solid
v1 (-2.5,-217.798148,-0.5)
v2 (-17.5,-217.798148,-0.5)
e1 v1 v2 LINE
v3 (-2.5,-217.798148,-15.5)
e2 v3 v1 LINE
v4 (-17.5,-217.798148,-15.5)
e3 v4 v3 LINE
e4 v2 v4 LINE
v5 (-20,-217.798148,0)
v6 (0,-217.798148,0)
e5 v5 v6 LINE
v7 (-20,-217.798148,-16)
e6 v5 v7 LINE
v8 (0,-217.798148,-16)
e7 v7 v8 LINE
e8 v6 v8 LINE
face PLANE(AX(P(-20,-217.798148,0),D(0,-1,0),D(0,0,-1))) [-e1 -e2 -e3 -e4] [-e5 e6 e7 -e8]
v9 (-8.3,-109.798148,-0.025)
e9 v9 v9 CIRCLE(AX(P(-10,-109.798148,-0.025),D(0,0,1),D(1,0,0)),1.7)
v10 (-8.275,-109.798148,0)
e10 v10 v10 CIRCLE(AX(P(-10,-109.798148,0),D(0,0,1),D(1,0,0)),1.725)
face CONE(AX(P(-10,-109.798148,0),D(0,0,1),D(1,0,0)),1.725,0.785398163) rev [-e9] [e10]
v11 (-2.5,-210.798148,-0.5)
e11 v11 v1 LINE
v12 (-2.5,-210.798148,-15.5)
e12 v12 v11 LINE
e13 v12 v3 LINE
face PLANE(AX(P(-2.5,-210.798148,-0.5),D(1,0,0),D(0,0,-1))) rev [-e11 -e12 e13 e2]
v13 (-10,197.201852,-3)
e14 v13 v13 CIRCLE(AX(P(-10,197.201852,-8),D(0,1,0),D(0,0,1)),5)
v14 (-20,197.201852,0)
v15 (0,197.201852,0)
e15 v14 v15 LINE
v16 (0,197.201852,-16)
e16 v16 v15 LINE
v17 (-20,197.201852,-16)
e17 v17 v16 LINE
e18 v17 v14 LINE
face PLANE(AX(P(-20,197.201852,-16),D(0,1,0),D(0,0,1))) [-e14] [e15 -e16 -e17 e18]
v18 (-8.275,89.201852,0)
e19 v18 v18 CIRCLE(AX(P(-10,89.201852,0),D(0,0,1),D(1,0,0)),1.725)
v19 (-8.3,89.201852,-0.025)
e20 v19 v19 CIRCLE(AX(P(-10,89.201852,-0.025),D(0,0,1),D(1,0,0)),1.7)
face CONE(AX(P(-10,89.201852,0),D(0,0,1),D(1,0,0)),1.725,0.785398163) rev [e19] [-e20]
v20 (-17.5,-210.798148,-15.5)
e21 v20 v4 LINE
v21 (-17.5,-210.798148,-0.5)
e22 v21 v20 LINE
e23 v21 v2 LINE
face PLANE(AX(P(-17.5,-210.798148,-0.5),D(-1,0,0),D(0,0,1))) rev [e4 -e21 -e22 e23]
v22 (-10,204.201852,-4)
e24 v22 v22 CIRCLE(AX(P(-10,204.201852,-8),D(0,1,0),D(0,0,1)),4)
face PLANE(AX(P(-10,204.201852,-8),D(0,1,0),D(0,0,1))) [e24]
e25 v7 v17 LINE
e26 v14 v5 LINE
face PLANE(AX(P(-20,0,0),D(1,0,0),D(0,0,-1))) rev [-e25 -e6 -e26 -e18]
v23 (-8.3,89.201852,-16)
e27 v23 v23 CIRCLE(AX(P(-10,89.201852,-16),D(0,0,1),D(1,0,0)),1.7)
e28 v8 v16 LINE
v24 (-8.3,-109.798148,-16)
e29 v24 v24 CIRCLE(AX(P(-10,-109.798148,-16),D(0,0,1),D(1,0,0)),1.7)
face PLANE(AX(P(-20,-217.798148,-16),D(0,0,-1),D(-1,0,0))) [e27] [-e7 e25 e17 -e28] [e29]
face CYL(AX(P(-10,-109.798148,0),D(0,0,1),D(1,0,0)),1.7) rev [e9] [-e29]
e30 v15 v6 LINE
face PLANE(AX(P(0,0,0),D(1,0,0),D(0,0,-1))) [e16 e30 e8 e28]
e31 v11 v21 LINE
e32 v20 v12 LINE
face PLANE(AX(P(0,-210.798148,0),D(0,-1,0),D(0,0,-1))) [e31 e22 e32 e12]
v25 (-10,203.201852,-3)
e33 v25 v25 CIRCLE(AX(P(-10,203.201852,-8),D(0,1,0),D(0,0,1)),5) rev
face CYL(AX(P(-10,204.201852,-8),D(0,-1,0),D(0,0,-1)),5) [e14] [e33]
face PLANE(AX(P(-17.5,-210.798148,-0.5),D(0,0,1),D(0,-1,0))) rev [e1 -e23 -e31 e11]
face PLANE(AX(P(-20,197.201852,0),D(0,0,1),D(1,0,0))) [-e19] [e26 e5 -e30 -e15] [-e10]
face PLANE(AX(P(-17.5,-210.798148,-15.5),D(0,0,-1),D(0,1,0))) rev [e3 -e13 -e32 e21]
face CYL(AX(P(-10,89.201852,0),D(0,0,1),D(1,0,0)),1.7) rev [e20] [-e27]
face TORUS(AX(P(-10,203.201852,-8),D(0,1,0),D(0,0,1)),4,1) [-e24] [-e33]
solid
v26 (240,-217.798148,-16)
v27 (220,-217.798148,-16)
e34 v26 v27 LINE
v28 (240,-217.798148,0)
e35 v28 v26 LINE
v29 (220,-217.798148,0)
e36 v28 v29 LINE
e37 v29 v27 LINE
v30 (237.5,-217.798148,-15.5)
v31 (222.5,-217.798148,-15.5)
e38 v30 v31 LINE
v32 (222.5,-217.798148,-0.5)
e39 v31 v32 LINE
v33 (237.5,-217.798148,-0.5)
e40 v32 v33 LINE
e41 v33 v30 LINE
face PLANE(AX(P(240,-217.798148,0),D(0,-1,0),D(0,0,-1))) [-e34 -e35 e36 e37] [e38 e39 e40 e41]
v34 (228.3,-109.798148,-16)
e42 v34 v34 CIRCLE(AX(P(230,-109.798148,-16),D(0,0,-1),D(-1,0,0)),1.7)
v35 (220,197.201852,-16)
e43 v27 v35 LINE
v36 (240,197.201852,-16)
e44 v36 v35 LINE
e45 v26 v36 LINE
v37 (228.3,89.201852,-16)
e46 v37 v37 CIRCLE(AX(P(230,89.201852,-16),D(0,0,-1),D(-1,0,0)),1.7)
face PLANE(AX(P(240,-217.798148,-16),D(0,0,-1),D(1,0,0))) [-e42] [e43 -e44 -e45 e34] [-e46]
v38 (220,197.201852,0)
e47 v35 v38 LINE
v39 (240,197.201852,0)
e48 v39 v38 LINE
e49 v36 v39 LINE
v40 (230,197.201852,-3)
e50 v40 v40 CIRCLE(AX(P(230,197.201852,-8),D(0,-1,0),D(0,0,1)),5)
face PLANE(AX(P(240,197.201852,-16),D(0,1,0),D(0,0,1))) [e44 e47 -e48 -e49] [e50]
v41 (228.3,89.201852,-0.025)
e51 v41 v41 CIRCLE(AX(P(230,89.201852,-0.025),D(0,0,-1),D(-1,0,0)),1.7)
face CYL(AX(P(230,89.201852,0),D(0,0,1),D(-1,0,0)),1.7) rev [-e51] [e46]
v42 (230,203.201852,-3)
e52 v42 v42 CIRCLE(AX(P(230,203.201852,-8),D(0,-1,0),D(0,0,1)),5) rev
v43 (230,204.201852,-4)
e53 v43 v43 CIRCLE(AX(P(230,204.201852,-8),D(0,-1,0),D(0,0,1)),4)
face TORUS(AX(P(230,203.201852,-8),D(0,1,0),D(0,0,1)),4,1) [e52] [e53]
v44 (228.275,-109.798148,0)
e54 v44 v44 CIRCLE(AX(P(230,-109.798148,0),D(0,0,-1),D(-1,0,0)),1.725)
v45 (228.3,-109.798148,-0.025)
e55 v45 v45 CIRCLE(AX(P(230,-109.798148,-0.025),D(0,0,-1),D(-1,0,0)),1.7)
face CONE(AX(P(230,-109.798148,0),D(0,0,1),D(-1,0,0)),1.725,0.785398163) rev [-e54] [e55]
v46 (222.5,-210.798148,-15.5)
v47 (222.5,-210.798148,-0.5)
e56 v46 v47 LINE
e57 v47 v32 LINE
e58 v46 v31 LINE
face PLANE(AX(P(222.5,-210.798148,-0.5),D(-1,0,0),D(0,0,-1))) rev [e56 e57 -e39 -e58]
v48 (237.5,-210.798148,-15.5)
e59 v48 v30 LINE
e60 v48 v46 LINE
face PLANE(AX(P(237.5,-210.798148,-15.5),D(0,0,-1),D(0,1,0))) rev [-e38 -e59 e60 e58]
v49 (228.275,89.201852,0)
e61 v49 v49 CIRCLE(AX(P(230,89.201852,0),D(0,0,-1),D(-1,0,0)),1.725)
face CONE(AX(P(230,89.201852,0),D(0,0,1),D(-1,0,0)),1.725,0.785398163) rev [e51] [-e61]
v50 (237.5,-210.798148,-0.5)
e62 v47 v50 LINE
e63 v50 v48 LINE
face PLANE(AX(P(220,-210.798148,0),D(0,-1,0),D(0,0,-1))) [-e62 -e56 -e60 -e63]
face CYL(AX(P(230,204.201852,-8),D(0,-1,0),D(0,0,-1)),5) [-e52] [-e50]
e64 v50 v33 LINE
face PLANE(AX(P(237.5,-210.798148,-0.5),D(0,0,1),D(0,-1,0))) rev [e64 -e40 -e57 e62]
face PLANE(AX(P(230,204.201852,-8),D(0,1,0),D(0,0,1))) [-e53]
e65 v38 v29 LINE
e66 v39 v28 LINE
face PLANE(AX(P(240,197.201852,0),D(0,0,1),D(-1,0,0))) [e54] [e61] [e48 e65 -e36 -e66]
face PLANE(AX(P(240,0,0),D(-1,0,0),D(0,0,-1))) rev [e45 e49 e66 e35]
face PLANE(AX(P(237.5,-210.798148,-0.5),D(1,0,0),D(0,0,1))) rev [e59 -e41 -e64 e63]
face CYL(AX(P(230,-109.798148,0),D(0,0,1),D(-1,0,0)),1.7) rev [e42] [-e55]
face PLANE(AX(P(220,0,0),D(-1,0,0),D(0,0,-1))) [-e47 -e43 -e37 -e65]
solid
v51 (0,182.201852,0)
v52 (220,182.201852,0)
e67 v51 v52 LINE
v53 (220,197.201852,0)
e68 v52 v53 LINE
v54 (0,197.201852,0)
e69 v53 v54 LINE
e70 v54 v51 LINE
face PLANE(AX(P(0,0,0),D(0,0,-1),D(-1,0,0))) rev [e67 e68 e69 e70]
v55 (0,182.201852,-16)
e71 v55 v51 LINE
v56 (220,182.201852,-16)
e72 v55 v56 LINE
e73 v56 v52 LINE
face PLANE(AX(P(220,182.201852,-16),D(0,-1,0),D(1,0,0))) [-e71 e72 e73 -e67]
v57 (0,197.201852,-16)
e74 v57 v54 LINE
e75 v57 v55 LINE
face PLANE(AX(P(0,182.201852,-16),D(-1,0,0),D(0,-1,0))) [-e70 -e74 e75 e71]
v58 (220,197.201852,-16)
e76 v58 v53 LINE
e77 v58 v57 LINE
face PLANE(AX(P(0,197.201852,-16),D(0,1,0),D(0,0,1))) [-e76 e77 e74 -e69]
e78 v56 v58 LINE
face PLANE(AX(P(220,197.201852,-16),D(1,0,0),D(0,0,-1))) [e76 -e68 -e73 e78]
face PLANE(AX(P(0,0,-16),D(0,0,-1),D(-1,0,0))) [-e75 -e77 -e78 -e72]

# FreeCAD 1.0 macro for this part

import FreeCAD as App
import Part
import Sketcher
Q = App.Units.Quantity


def edges_at(feature, points):
    """Names of the edges that pass closest to the given points."""
    edges = feature.Shape.Edges
    near = lambda p: min(range(len(edges)), key=lambda i: edges[i].distToShape(Part.Vertex(*p))[0])
    return sorted({f"Edge{near(p) + 1}" for p in points})


def add_polygon(sketch, points):
    """Adds a closed chain of lines whose ends are joined by coincident constraints."""
    first, n = sketch.GeometryCount, len(points)
    for a, b in zip(points, points[1:] + points[:1]):
        sketch.addGeometry(Part.LineSegment(App.Vector(*a, 0), App.Vector(*b, 0)), False)
    for i in range(n):
        sketch.addConstraint(Sketcher.Constraint("Coincident", first + i, 2, first + (i + 1) % n, 1))

doc = App.newDocument("Part")
body = doc.addObject("PartDesign::Body", "Body")

# Sketch on YZ plane
sketch1 = body.newObject("Sketcher::SketchObject", "Sketch")
sketch1.AttachmentSupport = (doc.getObject("YZ_Plane"), [""])
sketch1.MapMode = "FlatFace"
add_polygon(sketch1, [(197, 0), (-218, 0), (-218, -16), (197, -16)])  # lines 0-3
sketch1.addConstraint([
    Sketcher.Constraint("Horizontal", 0),
    Sketcher.Constraint("Vertical", 1),
    Sketcher.Constraint("Horizontal", 2),
    Sketcher.Constraint("Vertical", 3),
    Sketcher.Constraint("PointOnObject", 0, 2, -1),
    Sketcher.Constraint("DistanceX", 0, 2, 0, 1, Q("415 mm")),
    Sketcher.Constraint("DistanceY", 1, 2, 1, 1, Q("16 mm")),
    Sketcher.Constraint("DistanceX", 0, 2, -1, 1, Q("217.798148 mm")),
])
pad1 = body.newObject("PartDesign::Pad", "Pad")
pad1.Profile = sketch1
pad1.Length = 20
pad1.Reversed = True

# Sketch on XZ plane
sketch2 = body.newObject("Sketcher::SketchObject", "Sketch001")
sketch2.AttachmentSupport = (doc.getObject("XZ_Plane"), [""])
sketch2.MapMode = "FlatFace"
sketch2.AttachmentOffset = App.Placement(App.Vector(0, 0, -197.201852), App.Rotation())
sketch2.addGeometry(Part.Circle(App.Vector(-10, -8, 0), App.Vector(0, 0, 1), 5), False)
sketch2.addConstraint([
    Sketcher.Constraint("Diameter", 0, Q("10 mm")),
    Sketcher.Constraint("DistanceX", 0, 3, -1, 1, Q("10 mm")),
    Sketcher.Constraint("DistanceY", 0, 3, -1, 1, Q("8 mm")),
])
pad2 = body.newObject("PartDesign::Pad", "Pad001")
pad2.Profile = sketch2
pad2.Length = 7
pad2.Reversed = True
doc.recompute()

fillet = body.newObject("PartDesign::Fillet", "Fillet")
fillet.Base = (pad2, edges_at(pad2, [(-15, 204.202, -8)]))
fillet.Radius = 1

# Sketch on XY plane
sketch3 = body.newObject("Sketcher::SketchObject", "Sketch002")
sketch3.AttachmentSupport = (doc.getObject("XY_Plane"), [""])
sketch3.MapMode = "FlatFace"
sketch3.addGeometry([
    Part.Circle(App.Vector(-10, 89.2, 0), App.Vector(0, 0, 1), 1.7),
    Part.Circle(App.Vector(-10, -109.8, 0), App.Vector(0, 0, 1), 1.7),
], False)
sketch3.addConstraint([
    Sketcher.Constraint("Equal", 0, 1),
    Sketcher.Constraint("Vertical", 0, 3, 1, 3),
    Sketcher.Constraint("Diameter", 0, Q("3.4 mm")),
    Sketcher.Constraint("DistanceX", 0, 3, -1, 1, Q("10 mm")),
    Sketcher.Constraint("DistanceY", 1, 3, 0, 3, Q("199 mm")),
    Sketcher.Constraint("DistanceY", -1, 1, 0, 3, Q("89.201852 mm")),
])
doc.recompute()
hole = body.newObject("PartDesign::Hole", "Hole")
hole.Profile = sketch3
hole.ThreadType = "None"
hole.Diameter = 3.4
hole.DepthType = "ThroughAll"
hole.HoleCutType = "Countersink"
hole.HoleCutDiameter = 3.45
hole.HoleCutCountersinkAngle = 90

# Sketch on XZ plane
sketch4 = body.newObject("Sketcher::SketchObject", "Sketch003")
sketch4.AttachmentSupport = (doc.getObject("XZ_Plane"), [""])
sketch4.MapMode = "FlatFace"
sketch4.AttachmentOffset = App.Placement(App.Vector(0, 0, 217.798148), App.Rotation())
add_polygon(sketch4, [(-18, 0), (-18, -16), (-2, -16), (-2, 0)])  # lines 0-3
sketch4.addConstraint([
    Sketcher.Constraint("Vertical", 0),
    Sketcher.Constraint("Horizontal", 1),
    Sketcher.Constraint("Vertical", 2),
    Sketcher.Constraint("Horizontal", 3),
    Sketcher.Constraint("Equal", 3, 0),
    Sketcher.Constraint("DistanceX", 1, 1, 1, 2, Q("15 mm")),
    Sketcher.Constraint("DistanceX", 0, 2, -1, 1, Q("17.5 mm")),
    Sketcher.Constraint("DistanceY", 0, 2, -1, 1, Q("15.5 mm")),
])
pocket1 = body.newObject("PartDesign::Pocket", "Pocket")
pocket1.Profile = sketch4
pocket1.Length = 7
body2 = doc.addObject("PartDesign::Body", "Body001")
doc.recompute()

mirroring = doc.addObject("Part::Mirroring", "Mirroring")
mirroring.Source = body
mirroring.Base = App.Vector(110, 0, 0)
mirroring.Normal = App.Vector(-1, 0, 0)
body2.BaseFeature = mirroring
doc.recompute()
body3 = doc.addObject("PartDesign::Body", "Body002")

# Sketch on XY plane
sketch5 = body3.newObject("Sketcher::SketchObject", "Sketch004")
sketch5.AttachmentSupport = (doc.getObject("XY_Plane002"), [""])
sketch5.MapMode = "FlatFace"
add_polygon(sketch5, [(0, 197), (0, 182), (220, 182), (220, 197)])  # lines 0-3
sketch5.addConstraint([
    Sketcher.Constraint("Vertical", 0),
    Sketcher.Constraint("Horizontal", 1),
    Sketcher.Constraint("Vertical", 2),
    Sketcher.Constraint("Horizontal", 3),
    Sketcher.Constraint("PointOnObject", 0, 2, -2),
    Sketcher.Constraint("DistanceX", 1, 1, 1, 2, Q("220 mm")),
    Sketcher.Constraint("DistanceY", 0, 2, 0, 1, Q("15 mm")),
    Sketcher.Constraint("DistanceY", -1, 1, 0, 2, Q("182.201852 mm")),
])
pad3 = body3.newObject("PartDesign::Pad", "Pad002")
pad3.Profile = sketch5
pad3.Length = 16
pad3.Reversed = True
mirroring.Visibility = False

doc.recompute()
